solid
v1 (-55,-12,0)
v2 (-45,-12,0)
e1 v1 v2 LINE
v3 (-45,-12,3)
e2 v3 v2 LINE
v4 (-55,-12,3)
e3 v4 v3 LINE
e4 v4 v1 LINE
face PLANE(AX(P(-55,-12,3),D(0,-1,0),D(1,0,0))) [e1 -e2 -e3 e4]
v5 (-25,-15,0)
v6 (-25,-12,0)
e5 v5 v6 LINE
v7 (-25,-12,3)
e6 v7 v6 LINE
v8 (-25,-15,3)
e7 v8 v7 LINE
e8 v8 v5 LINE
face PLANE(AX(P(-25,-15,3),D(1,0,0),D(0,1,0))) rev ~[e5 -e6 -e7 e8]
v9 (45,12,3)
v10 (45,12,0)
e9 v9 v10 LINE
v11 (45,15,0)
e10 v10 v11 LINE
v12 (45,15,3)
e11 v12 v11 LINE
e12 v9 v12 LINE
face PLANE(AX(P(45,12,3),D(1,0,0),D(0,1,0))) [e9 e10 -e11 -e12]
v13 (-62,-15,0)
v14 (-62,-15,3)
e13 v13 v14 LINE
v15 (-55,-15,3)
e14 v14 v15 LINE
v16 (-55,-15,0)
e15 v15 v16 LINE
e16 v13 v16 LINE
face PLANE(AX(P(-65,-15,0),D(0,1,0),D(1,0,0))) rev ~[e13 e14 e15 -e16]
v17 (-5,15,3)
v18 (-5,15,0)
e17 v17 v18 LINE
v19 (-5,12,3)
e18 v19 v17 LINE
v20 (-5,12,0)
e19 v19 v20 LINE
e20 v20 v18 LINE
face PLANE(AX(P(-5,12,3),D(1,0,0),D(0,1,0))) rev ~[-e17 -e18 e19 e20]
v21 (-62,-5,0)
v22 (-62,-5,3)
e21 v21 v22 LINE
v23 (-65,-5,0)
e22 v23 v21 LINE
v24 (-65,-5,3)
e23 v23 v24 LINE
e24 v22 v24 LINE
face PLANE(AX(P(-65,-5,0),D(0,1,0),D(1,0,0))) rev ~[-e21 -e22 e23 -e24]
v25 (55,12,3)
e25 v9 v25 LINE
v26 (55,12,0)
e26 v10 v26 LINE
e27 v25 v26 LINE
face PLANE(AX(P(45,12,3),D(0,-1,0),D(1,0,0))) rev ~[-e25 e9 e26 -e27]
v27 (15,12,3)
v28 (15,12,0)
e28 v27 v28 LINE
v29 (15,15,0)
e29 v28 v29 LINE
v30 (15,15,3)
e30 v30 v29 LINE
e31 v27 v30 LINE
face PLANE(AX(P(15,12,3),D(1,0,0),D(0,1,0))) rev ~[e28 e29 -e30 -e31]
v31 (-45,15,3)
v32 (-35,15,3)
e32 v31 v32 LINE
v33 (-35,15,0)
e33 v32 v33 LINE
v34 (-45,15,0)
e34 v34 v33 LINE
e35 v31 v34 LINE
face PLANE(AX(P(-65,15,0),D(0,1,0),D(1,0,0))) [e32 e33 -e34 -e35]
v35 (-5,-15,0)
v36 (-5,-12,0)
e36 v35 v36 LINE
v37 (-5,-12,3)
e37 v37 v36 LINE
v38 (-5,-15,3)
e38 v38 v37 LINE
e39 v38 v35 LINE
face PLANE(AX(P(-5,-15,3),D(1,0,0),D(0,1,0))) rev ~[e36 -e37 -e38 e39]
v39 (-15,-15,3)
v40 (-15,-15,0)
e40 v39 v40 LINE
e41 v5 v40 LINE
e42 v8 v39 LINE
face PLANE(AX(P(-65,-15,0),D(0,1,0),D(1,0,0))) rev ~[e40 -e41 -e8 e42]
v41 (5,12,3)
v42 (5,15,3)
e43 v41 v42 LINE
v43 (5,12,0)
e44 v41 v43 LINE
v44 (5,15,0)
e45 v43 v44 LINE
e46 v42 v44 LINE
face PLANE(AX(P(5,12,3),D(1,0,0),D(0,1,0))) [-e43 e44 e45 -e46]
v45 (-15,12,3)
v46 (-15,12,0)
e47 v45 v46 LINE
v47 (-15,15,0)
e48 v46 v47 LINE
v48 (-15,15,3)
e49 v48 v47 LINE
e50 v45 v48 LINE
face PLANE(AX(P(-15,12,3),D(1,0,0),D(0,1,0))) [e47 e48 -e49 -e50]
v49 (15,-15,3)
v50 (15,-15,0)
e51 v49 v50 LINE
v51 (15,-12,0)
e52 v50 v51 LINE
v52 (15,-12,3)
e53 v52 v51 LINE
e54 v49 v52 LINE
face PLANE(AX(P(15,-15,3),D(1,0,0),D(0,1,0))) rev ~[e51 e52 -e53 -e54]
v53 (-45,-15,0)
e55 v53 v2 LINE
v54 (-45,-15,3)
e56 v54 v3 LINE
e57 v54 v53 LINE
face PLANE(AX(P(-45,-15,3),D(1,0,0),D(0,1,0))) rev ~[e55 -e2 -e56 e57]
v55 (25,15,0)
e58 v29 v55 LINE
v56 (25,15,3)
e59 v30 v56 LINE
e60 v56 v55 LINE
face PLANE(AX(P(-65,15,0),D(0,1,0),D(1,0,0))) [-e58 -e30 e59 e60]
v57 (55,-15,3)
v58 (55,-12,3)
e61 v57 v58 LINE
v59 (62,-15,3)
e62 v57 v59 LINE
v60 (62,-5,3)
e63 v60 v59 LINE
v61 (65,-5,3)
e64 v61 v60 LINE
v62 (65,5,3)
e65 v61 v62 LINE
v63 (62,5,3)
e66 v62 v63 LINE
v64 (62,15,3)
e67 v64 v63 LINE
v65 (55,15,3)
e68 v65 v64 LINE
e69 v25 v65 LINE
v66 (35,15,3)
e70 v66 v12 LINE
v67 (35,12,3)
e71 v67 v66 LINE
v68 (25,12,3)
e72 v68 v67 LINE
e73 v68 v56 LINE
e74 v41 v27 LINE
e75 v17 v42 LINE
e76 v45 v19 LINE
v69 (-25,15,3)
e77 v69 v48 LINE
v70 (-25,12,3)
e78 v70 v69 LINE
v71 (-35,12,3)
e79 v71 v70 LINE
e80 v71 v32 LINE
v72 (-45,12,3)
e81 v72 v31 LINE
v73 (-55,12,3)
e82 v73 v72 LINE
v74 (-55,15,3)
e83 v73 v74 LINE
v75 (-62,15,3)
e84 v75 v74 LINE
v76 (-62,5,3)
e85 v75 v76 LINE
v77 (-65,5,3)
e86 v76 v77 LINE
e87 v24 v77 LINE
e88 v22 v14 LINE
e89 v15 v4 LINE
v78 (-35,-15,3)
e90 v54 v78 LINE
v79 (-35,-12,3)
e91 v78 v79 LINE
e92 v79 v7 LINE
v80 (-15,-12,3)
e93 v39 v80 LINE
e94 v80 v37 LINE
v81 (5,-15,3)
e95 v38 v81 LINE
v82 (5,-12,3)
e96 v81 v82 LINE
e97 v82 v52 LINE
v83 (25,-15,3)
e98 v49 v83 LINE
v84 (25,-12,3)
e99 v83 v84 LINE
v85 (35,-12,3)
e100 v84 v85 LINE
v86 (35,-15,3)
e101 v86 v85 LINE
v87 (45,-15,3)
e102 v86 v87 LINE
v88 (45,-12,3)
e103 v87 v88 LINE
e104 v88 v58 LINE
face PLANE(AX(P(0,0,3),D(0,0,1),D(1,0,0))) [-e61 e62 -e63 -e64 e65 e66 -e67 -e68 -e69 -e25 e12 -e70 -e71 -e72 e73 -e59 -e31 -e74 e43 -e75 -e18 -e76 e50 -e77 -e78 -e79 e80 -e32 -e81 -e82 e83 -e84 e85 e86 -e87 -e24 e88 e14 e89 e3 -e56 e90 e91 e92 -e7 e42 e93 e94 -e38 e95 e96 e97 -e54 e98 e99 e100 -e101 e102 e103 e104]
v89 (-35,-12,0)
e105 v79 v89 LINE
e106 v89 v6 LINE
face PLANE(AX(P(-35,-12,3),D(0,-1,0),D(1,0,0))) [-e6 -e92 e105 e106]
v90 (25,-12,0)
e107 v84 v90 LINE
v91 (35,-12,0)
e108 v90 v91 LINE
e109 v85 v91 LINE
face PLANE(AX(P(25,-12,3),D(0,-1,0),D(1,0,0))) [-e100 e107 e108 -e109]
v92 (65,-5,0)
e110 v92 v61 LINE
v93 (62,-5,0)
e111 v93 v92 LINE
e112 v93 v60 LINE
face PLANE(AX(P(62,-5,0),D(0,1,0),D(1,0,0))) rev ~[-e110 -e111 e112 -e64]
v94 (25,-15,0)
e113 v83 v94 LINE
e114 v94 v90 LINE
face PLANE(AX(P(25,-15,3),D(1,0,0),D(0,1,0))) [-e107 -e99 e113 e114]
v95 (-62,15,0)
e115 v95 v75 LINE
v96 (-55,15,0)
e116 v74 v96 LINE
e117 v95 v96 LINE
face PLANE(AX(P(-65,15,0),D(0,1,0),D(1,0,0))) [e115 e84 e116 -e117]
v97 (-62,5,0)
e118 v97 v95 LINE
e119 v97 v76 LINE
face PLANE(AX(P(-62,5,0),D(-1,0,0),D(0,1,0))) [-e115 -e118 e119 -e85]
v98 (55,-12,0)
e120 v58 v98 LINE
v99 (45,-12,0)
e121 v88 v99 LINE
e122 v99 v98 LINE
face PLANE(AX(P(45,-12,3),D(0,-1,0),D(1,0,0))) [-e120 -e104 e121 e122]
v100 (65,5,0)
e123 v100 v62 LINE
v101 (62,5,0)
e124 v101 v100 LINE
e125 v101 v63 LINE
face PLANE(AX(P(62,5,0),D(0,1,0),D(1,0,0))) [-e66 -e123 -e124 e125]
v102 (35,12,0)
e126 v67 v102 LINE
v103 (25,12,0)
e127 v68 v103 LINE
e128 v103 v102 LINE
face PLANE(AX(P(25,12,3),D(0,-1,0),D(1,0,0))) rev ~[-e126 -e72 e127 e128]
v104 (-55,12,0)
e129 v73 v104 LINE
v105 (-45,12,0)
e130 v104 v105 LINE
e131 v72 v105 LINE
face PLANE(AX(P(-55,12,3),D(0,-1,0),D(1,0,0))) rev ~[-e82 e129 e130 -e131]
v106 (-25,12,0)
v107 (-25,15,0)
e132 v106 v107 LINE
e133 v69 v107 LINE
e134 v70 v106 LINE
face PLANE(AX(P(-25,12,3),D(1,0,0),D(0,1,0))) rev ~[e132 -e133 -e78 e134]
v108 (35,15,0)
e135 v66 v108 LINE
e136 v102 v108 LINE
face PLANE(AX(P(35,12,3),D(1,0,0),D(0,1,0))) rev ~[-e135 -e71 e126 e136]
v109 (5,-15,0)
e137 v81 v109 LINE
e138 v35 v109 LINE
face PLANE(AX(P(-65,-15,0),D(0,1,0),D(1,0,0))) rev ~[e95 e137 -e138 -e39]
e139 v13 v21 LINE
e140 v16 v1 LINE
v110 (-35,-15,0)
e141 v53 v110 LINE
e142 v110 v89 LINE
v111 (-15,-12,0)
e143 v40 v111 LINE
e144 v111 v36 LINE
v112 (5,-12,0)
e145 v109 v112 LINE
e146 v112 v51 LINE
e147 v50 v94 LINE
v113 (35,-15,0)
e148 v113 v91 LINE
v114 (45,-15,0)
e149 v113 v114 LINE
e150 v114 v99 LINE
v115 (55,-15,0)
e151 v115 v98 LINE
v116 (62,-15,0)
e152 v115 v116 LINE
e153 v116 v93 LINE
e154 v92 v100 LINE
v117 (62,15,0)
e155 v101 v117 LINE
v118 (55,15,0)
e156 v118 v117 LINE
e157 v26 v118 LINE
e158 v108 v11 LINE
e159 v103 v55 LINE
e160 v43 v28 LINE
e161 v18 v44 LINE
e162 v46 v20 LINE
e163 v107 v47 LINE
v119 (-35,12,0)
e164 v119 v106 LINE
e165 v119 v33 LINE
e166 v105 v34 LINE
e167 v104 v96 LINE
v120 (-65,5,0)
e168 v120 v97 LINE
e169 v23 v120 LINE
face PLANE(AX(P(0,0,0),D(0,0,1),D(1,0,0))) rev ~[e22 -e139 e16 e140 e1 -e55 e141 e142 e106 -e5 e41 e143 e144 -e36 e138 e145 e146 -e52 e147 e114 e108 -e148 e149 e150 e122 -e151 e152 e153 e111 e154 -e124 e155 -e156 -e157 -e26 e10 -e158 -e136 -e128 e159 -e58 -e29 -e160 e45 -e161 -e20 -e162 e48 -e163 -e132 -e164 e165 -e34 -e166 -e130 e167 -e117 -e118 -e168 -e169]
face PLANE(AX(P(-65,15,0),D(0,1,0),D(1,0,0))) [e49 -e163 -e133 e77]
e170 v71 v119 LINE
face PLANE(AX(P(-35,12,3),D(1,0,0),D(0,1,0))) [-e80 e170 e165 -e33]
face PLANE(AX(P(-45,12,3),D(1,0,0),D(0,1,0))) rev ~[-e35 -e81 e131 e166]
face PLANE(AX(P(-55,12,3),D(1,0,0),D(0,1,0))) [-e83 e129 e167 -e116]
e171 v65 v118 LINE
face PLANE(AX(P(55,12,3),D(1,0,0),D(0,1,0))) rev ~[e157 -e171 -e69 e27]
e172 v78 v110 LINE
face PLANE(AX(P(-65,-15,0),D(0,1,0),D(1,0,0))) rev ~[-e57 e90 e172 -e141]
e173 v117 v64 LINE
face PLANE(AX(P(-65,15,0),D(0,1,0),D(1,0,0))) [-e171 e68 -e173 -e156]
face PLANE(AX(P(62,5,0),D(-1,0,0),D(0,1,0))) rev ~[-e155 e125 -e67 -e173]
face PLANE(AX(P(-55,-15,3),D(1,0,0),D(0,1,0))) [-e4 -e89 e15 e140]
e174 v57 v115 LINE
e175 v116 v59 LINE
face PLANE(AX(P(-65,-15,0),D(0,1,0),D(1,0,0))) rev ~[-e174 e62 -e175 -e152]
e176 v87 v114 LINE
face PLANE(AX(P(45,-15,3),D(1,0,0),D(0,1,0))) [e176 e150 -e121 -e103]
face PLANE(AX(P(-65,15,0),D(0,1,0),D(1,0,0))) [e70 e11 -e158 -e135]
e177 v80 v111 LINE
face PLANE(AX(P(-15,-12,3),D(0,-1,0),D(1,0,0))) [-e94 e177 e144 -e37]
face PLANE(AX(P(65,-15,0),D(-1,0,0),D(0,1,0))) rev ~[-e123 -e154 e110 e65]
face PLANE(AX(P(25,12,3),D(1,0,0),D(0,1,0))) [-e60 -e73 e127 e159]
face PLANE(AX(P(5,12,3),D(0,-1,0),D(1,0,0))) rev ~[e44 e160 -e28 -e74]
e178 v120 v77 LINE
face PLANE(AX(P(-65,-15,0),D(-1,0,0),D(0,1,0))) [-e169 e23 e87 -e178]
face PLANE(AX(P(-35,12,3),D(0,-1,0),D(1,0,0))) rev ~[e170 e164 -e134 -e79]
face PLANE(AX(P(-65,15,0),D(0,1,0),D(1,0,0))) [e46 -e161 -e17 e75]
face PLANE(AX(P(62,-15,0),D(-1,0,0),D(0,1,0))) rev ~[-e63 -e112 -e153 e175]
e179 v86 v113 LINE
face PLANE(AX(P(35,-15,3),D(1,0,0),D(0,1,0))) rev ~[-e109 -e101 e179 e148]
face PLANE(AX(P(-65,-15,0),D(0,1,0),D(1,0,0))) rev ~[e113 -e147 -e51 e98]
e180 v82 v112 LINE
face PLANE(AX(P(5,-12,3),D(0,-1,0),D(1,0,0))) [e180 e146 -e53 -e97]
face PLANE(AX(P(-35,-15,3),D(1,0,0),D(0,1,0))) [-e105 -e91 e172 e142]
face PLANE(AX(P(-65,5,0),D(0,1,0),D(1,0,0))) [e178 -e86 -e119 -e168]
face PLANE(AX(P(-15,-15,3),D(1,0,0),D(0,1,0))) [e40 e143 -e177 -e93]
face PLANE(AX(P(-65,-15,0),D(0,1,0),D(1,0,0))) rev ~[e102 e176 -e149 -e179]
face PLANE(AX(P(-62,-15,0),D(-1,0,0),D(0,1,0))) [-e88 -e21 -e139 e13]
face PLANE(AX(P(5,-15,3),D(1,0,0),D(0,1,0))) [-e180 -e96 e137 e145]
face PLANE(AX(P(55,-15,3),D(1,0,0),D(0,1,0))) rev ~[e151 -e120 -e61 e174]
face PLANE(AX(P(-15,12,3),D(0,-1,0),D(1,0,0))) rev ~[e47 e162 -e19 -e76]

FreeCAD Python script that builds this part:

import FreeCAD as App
import Part
import Sketcher

V = App.Vector
Q = App.Units.Quantity


def add_polygon(sketch, points):
    """Adds a closed chain of lines whose ends are joined by coincident constraints."""
    first, n = sketch.GeometryCount, len(points)
    for a, b in zip(points, points[1:] + points[:1]):
        sketch.addGeometry(Part.LineSegment(App.Vector(*a, 0), App.Vector(*b, 0)), False)
    for i in range(n):
        sketch.addConstraint(Sketcher.Constraint("Coincident", first + i, 2, first + (i + 1) % n, 1))

doc = App.newDocument("Part")
body = doc.addObject("PartDesign::Body", "Body")

# Sketch on XY plane
sketch1 = body.newObject("Sketcher::SketchObject", "Sketch")
sketch1.AttachmentSupport = (doc.getObject("XY_Plane"), [""])
sketch1.MapMode = "FlatFace"
add_polygon(sketch1, [(-65, 15), (-65, -15), (65, -15), (65, 15)])  # lines 0-3
sketch1.addConstraint([
    Sketcher.Constraint("Vertical", 0),
    Sketcher.Constraint("Horizontal", 1),
    Sketcher.Constraint("Vertical", 2),
    Sketcher.Constraint("Horizontal", 3),
    Sketcher.Constraint("Symmetric", 0, 2, 2, 2, -1, 1),
    Sketcher.Constraint("DistanceX", 1, 1, 1, 2, Q("130 mm")),
    Sketcher.Constraint("DistanceY", 0, 2, 0, 1, Q("30 mm")),
])
pad1 = body.newObject("PartDesign::Pad", "Pad")
pad1.Profile = sketch1
pad1.Length = 3

# Sketch on XY plane
sketch2 = body.newObject("Sketcher::SketchObject", "Sketch001")
sketch2.AttachmentSupport = (doc.getObject("XY_Plane"), [""])
sketch2.MapMode = "FlatFace"
add_polygon(sketch2, [(62, -5), (62, -15), (65, -15), (65, -5)])  # lines 0-3
add_polygon(sketch2, [(62, 15), (62, 5), (65, 5), (65, 15)])  # lines 4-7
add_polygon(sketch2, [(62, 35), (62, 25), (65, 25), (65, 35)])  # lines 8-11
add_polygon(sketch2, [(62, 55), (62, 45), (65, 45), (65, 55)])  # lines 12-15
add_polygon(sketch2, [(62, 75), (62, 65), (65, 65), (65, 75)])  # lines 16-19
add_polygon(sketch2, [(62, 95), (62, 85), (65, 85), (65, 95)])  # lines 20-23
add_polygon(sketch2, [(-65, -5), (-65, -15), (-62, -15), (-62, -5)])  # lines 24-27
add_polygon(sketch2, [(-65, 75), (-65, 65), (-62, 65), (-62, 75)])  # lines 28-31
add_polygon(sketch2, [(-65, 55), (-65, 45), (-62, 45), (-62, 55)])  # lines 32-35
add_polygon(sketch2, [(-65, 35), (-65, 25), (-62, 25), (-62, 35)])  # lines 36-39
add_polygon(sketch2, [(-65, 95), (-65, 85), (-62, 85), (-62, 95)])  # lines 40-43
add_polygon(sketch2, [(-65, 15), (-65, 5), (-62, 5), (-62, 15)])  # lines 44-47
sketch2.addConstraint([
    Sketcher.Constraint("Vertical", 0),
    Sketcher.Constraint("Horizontal", 1),
    Sketcher.Constraint("Vertical", 2),
    Sketcher.Constraint("Horizontal", 3),
    Sketcher.Constraint("Vertical", 4),
    Sketcher.Constraint("Horizontal", 5),
    Sketcher.Constraint("Vertical", 6),
    Sketcher.Constraint("Horizontal", 7),
    Sketcher.Constraint("Vertical", 8),
    Sketcher.Constraint("Horizontal", 9),
    Sketcher.Constraint("Vertical", 10),
    Sketcher.Constraint("Horizontal", 11),
    Sketcher.Constraint("Vertical", 12),
    Sketcher.Constraint("Horizontal", 13),
    Sketcher.Constraint("Vertical", 14),
    Sketcher.Constraint("Horizontal", 15),
    Sketcher.Constraint("Vertical", 16),
    Sketcher.Constraint("Horizontal", 17),
    Sketcher.Constraint("Vertical", 18),
    Sketcher.Constraint("Horizontal", 19),
    Sketcher.Constraint("Vertical", 20),
    Sketcher.Constraint("Horizontal", 21),
    Sketcher.Constraint("Vertical", 22),
    Sketcher.Constraint("Horizontal", 23),
    Sketcher.Constraint("Vertical", 24),
    Sketcher.Constraint("Horizontal", 25),
    Sketcher.Constraint("Vertical", 26),
    Sketcher.Constraint("Horizontal", 27),
    Sketcher.Constraint("Vertical", 28),
    Sketcher.Constraint("Horizontal", 29),
    Sketcher.Constraint("Vertical", 30),
    Sketcher.Constraint("Horizontal", 31),
    Sketcher.Constraint("Vertical", 32),
    Sketcher.Constraint("Horizontal", 33),
    Sketcher.Constraint("Vertical", 34),
    Sketcher.Constraint("Horizontal", 35),
    Sketcher.Constraint("Vertical", 36),
    Sketcher.Constraint("Horizontal", 37),
    Sketcher.Constraint("Vertical", 38),
    Sketcher.Constraint("Horizontal", 39),
    Sketcher.Constraint("Vertical", 40),
    Sketcher.Constraint("Horizontal", 41),
    Sketcher.Constraint("Vertical", 42),
    Sketcher.Constraint("Horizontal", 43),
    Sketcher.Constraint("Vertical", 44),
    Sketcher.Constraint("Horizontal", 45),
    Sketcher.Constraint("Vertical", 46),
    Sketcher.Constraint("Horizontal", 47),
    Sketcher.Constraint("Symmetric", 6, 2, 24, 2, -1, 1),
    Sketcher.Constraint("Symmetric", 4, 2, 26, 2, -1, 1),
    Sketcher.Constraint("Symmetric", 2, 2, 44, 2, -1, 1),
    Sketcher.Constraint("Symmetric", 0, 2, 46, 2, -1, 1),
    Sketcher.Constraint("Symmetric", 1, 2, 24, 2, -2),
    Sketcher.Constraint("Symmetric", 3, 2, 26, 2, -2),
    Sketcher.Constraint("Symmetric", 17, 2, 28, 2, -2),
    Sketcher.Constraint("Symmetric", 19, 2, 30, 2, -2),
    Sketcher.Constraint("Symmetric", 13, 2, 32, 2, -2),
    Sketcher.Constraint("Symmetric", 15, 2, 34, 2, -2),
    Sketcher.Constraint("Symmetric", 9, 2, 36, 2, -2),
    Sketcher.Constraint("Symmetric", 11, 2, 38, 2, -2),
    Sketcher.Constraint("Symmetric", 21, 2, 40, 2, -2),
    Sketcher.Constraint("Symmetric", 23, 2, 42, 2, -2),
    Sketcher.Constraint("Vertical", 7, 2, 8, 2),
    Sketcher.Constraint("Vertical", 6, 2, 9, 2),
    Sketcher.Constraint("Vertical", 11, 2, 12, 2),
    Sketcher.Constraint("Vertical", 10, 2, 13, 2),
    Sketcher.Constraint("Vertical", 15, 2, 16, 2),
    Sketcher.Constraint("Vertical", 14, 2, 17, 2),
    Sketcher.Constraint("Vertical", 19, 2, 20, 2),
    Sketcher.Constraint("Vertical", 18, 2, 21, 2),
    Sketcher.Constraint("Equal", 6, 8),
    Sketcher.Constraint("Equal", 10, 12),
    Sketcher.Constraint("Equal", 14, 16),
    Sketcher.Constraint("Equal", 18, 20),
    Sketcher.Constraint("DistanceX", 1, 1, 1, 2, Q("3 mm")),
    Sketcher.Constraint("DistanceY", 0, 2, 0, 1, Q("10 mm")),
    Sketcher.Constraint("DistanceX", -1, 1, 0, 2, Q("62 mm")),
    Sketcher.Constraint("DistanceY", 0, 2, -1, 1, Q("15 mm")),
    Sketcher.Constraint("DistanceY", -1, 1, 8, 2, Q("25 mm")),
    Sketcher.Constraint("DistanceY", -1, 1, 12, 2, Q("45 mm")),
    Sketcher.Constraint("DistanceY", -1, 1, 16, 2, Q("65 mm")),
    Sketcher.Constraint("DistanceY", -1, 1, 20, 2, Q("85 mm")),
])
pocket1 = body.newObject("PartDesign::Pocket", "Pocket")
pocket1.Profile = sketch2
pocket1.Length = 25
pocket1.Reversed = True

# Sketch on XY plane
sketch3 = body.newObject("Sketcher::SketchObject", "Sketch002")
sketch3.AttachmentSupport = (doc.getObject("XY_Plane"), [""])
sketch3.MapMode = "FlatFace"
sketch3.AttachmentOffset = App.Placement(V(0, 0, 3), App.Rotation())
add_polygon(sketch3, [(-55, -12), (-55, -15), (-45, -15), (-45, -12)])  # lines 0-3
add_polygon(sketch3, [(-35, -12), (-35, -15), (-25, -15), (-25, -12)])  # lines 4-7
add_polygon(sketch3, [(-15, -12), (-15, -15), (-5, -15), (-5, -12)])  # lines 8-11
add_polygon(sketch3, [(5, -12), (5, -15), (15, -15), (15, -12)])  # lines 12-15
add_polygon(sketch3, [(25, -12), (25, -15), (35, -15), (35, -12)])  # lines 16-19
add_polygon(sketch3, [(45, -12), (45, -15), (55, -15), (55, -12)])  # lines 20-23
add_polygon(sketch3, [(25, 15), (25, 12), (35, 12), (35, 15)])  # lines 24-27
add_polygon(sketch3, [(-55, 15), (-55, 12), (-45, 12), (-45, 15)])  # lines 28-31
add_polygon(sketch3, [(45, 15), (45, 12), (55, 12), (55, 15)])  # lines 32-35
add_polygon(sketch3, [(-35, 15), (-35, 12), (-25, 12), (-25, 15)])  # lines 36-39
add_polygon(sketch3, [(65, 15), (65, 12), (75, 12), (75, 15)])  # lines 40-43
add_polygon(sketch3, [(-15, 15), (-15, 12), (-5, 12), (-5, 15)])  # lines 44-47
add_polygon(sketch3, [(5, 15), (5, 12), (15, 12), (15, 15)])  # lines 48-51
sketch3.addConstraint([
    Sketcher.Constraint("Vertical", 0),
    Sketcher.Constraint("Horizontal", 1),
    Sketcher.Constraint("Vertical", 2),
    Sketcher.Constraint("Horizontal", 3),
    Sketcher.Constraint("Vertical", 4),
    Sketcher.Constraint("Horizontal", 5),
    Sketcher.Constraint("Vertical", 6),
    Sketcher.Constraint("Horizontal", 7),
    Sketcher.Constraint("Vertical", 8),
    Sketcher.Constraint("Horizontal", 9),
    Sketcher.Constraint("Vertical", 10),
    Sketcher.Constraint("Horizontal", 11),
    Sketcher.Constraint("Vertical", 12),
    Sketcher.Constraint("Horizontal", 13),
    Sketcher.Constraint("Vertical", 14),
    Sketcher.Constraint("Horizontal", 15),
    Sketcher.Constraint("Vertical", 16),
    Sketcher.Constraint("Horizontal", 17),
    Sketcher.Constraint("Vertical", 18),
    Sketcher.Constraint("Horizontal", 19),
    Sketcher.Constraint("Vertical", 20),
    Sketcher.Constraint("Horizontal", 21),
    Sketcher.Constraint("Vertical", 22),
    Sketcher.Constraint("Horizontal", 23),
    Sketcher.Constraint("Vertical", 24),
    Sketcher.Constraint("Horizontal", 25),
    Sketcher.Constraint("Vertical", 26),
    Sketcher.Constraint("Horizontal", 27),
    Sketcher.Constraint("Vertical", 28),
    Sketcher.Constraint("Horizontal", 29),
    Sketcher.Constraint("Vertical", 30),
    Sketcher.Constraint("Horizontal", 31),
    Sketcher.Constraint("Vertical", 32),
    Sketcher.Constraint("Horizontal", 33),
    Sketcher.Constraint("Vertical", 34),
    Sketcher.Constraint("Horizontal", 35),
    Sketcher.Constraint("Vertical", 36),
    Sketcher.Constraint("Horizontal", 37),
    Sketcher.Constraint("Vertical", 38),
    Sketcher.Constraint("Horizontal", 39),
    Sketcher.Constraint("Vertical", 40),
    Sketcher.Constraint("Horizontal", 41),
    Sketcher.Constraint("Vertical", 42),
    Sketcher.Constraint("Horizontal", 43),
    Sketcher.Constraint("Vertical", 44),
    Sketcher.Constraint("Horizontal", 45),
    Sketcher.Constraint("Vertical", 46),
    Sketcher.Constraint("Horizontal", 47),
    Sketcher.Constraint("Vertical", 48),
    Sketcher.Constraint("Horizontal", 49),
    Sketcher.Constraint("Vertical", 50),
    Sketcher.Constraint("Horizontal", 51),
    Sketcher.Constraint("Symmetric", 6, 2, 24, 2, -1, 1),
    Sketcher.Constraint("Symmetric", 4, 2, 26, 2, -1, 1),
    Sketcher.Constraint("Symmetric", 22, 2, 28, 2, -1, 1),
    Sketcher.Constraint("Symmetric", 20, 2, 30, 2, -1, 1),
    Sketcher.Constraint("Symmetric", 2, 2, 32, 2, -1, 1),
    Sketcher.Constraint("Symmetric", 0, 2, 34, 2, -1, 1),
    Sketcher.Constraint("Symmetric", 18, 2, 36, 2, -1, 1),
    Sketcher.Constraint("Symmetric", 16, 2, 38, 2, -1, 1),
    Sketcher.Constraint("Symmetric", 14, 2, 44, 2, -1, 1),
    Sketcher.Constraint("Symmetric", 12, 2, 46, 2, -1, 1),
    Sketcher.Constraint("Symmetric", 10, 2, 48, 2, -1, 1),
    Sketcher.Constraint("Symmetric", 8, 2, 50, 2, -1, 1),
    Sketcher.Constraint("Symmetric", 9, 2, 12, 2, -2),
    Sketcher.Constraint("Symmetric", 11, 2, 14, 2, -2),
    Sketcher.Constraint("Symmetric", 5, 2, 16, 2, -2),
    Sketcher.Constraint("Symmetric", 7, 2, 18, 2, -2),
    Sketcher.Constraint("Symmetric", 1, 2, 20, 2, -2),
    Sketcher.Constraint("Symmetric", 3, 2, 22, 2, -2),
    Sketcher.Constraint("Horizontal", 1, 2, 4, 2),
    Sketcher.Constraint("Horizontal", 3, 2, 6, 2),
    Sketcher.Constraint("Horizontal", 5, 2, 8, 2),
    Sketcher.Constraint("Horizontal", 7, 2, 10, 2),
    Sketcher.Constraint("Horizontal", 37, 2, 40, 2),
    Sketcher.Constraint("Horizontal", 39, 2, 42, 2),
    Sketcher.Constraint("Equal", 3, 5),
    Sketcher.Constraint("Equal", 7, 9),
    Sketcher.Constraint("Equal", 39, 41),
    Sketcher.Constraint("DistanceX", 1, 1, 1, 2, Q("10 mm")),
    Sketcher.Constraint("DistanceY", 0, 2, 0, 1, Q("3 mm")),
    Sketcher.Constraint("DistanceX", 0, 2, -1, 1, Q("55 mm")),
    Sketcher.Constraint("DistanceY", 0, 2, -1, 1, Q("15 mm")),
    Sketcher.Constraint("DistanceX", 4, 2, -1, 1, Q("35 mm")),
    Sketcher.Constraint("DistanceX", 8, 2, -1, 1, Q("15 mm")),
    Sketcher.Constraint("DistanceX", -1, 1, 40, 2, Q("65 mm")),
])
pocket2 = body.newObject("PartDesign::Pocket", "Pocket001")
pocket2.Profile = sketch3
pocket2.Length = 25

doc.recompute()
